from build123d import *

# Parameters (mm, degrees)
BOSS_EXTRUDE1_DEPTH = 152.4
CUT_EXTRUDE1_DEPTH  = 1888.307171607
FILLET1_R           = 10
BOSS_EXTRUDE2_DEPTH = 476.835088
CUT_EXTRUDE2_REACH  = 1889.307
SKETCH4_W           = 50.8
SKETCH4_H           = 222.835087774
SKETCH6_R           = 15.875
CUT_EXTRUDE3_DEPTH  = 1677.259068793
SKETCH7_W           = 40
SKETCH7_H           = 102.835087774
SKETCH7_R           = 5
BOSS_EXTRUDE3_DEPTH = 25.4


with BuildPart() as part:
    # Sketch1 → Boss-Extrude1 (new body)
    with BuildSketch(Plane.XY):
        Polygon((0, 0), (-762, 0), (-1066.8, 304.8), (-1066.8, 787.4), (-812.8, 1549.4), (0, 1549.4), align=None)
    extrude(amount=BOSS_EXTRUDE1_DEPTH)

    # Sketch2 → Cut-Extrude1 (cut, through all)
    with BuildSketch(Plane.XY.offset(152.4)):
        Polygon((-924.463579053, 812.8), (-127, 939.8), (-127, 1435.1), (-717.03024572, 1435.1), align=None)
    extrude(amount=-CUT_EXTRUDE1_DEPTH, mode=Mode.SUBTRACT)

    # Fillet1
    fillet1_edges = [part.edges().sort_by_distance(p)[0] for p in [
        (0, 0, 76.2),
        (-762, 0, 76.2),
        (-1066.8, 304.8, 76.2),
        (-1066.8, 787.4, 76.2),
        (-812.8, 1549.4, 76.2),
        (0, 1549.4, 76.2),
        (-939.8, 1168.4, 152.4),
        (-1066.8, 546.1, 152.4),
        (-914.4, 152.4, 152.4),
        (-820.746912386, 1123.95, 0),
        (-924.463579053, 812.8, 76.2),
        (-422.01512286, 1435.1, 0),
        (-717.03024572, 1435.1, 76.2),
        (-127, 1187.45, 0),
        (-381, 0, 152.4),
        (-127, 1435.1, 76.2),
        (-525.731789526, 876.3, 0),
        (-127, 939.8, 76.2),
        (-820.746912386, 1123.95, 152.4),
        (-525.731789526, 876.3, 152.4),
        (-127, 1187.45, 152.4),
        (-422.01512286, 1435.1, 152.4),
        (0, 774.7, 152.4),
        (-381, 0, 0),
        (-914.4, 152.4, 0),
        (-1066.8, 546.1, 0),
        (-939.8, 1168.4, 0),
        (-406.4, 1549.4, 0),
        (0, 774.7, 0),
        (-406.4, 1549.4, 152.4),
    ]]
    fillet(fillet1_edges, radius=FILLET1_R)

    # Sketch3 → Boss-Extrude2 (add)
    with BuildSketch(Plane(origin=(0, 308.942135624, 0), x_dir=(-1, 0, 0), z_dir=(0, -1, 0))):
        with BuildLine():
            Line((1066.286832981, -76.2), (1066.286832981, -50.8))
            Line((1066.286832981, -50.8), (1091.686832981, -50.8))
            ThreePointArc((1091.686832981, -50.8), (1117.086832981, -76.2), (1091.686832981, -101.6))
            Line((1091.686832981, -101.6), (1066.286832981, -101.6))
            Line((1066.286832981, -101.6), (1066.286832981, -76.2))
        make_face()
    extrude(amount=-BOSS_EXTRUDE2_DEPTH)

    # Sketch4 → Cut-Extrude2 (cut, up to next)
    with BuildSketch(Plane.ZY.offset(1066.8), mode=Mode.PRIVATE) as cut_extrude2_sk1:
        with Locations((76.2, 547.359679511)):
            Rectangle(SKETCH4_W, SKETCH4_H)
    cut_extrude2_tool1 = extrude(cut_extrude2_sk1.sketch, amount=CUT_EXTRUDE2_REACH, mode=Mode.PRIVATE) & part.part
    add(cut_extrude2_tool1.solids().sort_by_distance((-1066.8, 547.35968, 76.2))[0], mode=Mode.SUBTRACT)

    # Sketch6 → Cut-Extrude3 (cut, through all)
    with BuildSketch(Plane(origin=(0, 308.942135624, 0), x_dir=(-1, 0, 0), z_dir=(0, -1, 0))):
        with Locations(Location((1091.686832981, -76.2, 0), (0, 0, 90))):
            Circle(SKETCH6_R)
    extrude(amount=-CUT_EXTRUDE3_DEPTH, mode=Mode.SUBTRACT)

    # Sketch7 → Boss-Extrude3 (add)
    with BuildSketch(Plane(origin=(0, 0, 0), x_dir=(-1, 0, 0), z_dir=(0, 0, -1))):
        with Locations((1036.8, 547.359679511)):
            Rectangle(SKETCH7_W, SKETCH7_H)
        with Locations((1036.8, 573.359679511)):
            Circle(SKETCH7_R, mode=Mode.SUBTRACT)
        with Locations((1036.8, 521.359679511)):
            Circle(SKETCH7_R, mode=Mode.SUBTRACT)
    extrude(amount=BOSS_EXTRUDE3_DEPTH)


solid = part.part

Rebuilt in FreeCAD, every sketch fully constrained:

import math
import FreeCAD as App
import Part
import Sketcher
Q = App.Units.Quantity


def add_polygon(sketch, points):
    """Adds a closed chain of lines whose ends are joined by coincident constraints."""
    first, n = sketch.GeometryCount, len(points)
    for a, b in zip(points, points[1:] + points[:1]):
        sketch.addGeometry(Part.LineSegment(App.Vector(*a, 0), App.Vector(*b, 0)), False)
    for i in range(n):
        sketch.addConstraint(Sketcher.Constraint("Coincident", first + i, 2, first + (i + 1) % n, 1))

doc = App.newDocument("Part")
body = doc.addObject("PartDesign::Body", "Body")

# Sketch on XY plane
sketch1 = body.newObject("Sketcher::SketchObject", "Sketch")
sketch1.AttachmentSupport = (doc.getObject("XY_Plane"), [""])
sketch1.MapMode = "FlatFace"
add_polygon(sketch1, [(-762, 0), (0, 0), (0, 1549.4), (-812.8, 1549.4), (-1066.8, 787.4), (-1066.8, 304.8)])  # lines 0-5
sketch1.addConstraint(Sketcher.Constraint("Horizontal", 0))
sketch1.addConstraint(Sketcher.Constraint("Vertical", 1))
sketch1.addConstraint(Sketcher.Constraint("Horizontal", 2))
sketch1.addConstraint(Sketcher.Constraint("Vertical", 4))
sketch1.addConstraint(Sketcher.Constraint("Coincident", 0, 2, -1, 1))
sketch1.addConstraint(Sketcher.Constraint("DistanceX", 0, 1, 0, 2, Q("30 in")))
sketch1.addConstraint(Sketcher.Constraint("DistanceX", 2, 2, 2, 1, Q("32 in")))
sketch1.addConstraint(Sketcher.Constraint("DistanceY", 1, 1, 1, 2, Q("61 in")))
sketch1.addConstraint(Sketcher.Constraint("DistanceY", 4, 2, 4, 1, Q("19 in")))
sketch1.addConstraint(Sketcher.Constraint("DistanceX", 3, 2, -1, 1, Q("42 in")))
sketch1.addConstraint(Sketcher.Constraint("DistanceY", -1, 1, 3, 2, Q("31 in")))
pad1 = body.newObject("PartDesign::Pad", "Pad")
pad1.Profile = sketch1
pad1.Length = Q("6 in")

# Sketch on XY plane
sketch2 = body.newObject("Sketcher::SketchObject", "Sketch001")
sketch2.AttachmentSupport = (doc.getObject("XY_Plane"), [""])
sketch2.MapMode = "FlatFace"
sketch2.AttachmentOffset = App.Placement(App.Vector(0, 0, 6 * 25.4), App.Rotation())
add_polygon(sketch2, [(-924.463579, 812.8), (-127, 939.8), (-127, 1435.1), (-717.030246, 1435.1)])  # lines 0-3
sketch2.addConstraint(Sketcher.Constraint("Vertical", 1))
sketch2.addConstraint(Sketcher.Constraint("Horizontal", 2))
sketch2.addConstraint(Sketcher.Constraint("DistanceY", 1, 1, 1, 2, Q("19.5 in")))
sketch2.addConstraint(Sketcher.Constraint("DistanceX", 0, 2, -1, 1, Q("5 in")))
sketch2.addConstraint(Sketcher.Constraint("DistanceY", -1, 1, 0, 2, Q("37 in")))
sketch2.addConstraint(Sketcher.Constraint("DistanceY", -1, 1, 3, 2, Q("32 in")))
sketch2.addConstraint(Sketcher.Constraint("DistanceX", 2, 2, 2, 1, 590.030246))
sketch2.addConstraint(Sketcher.Constraint("DistanceX", 3, 2, -1, 1, 924.463579))
pocket1 = body.newObject("PartDesign::Pocket", "Pocket")
pocket1.Profile = sketch2
pocket1.Type = "ThroughAll"
doc.recompute()

fillet = body.newObject("PartDesign::Fillet", "Fillet")
fillet.Base = (pocket1, ["Edge1"])
fillet.UseAllEdges = True
fillet.Radius = 10

# Sketch on XZ plane
sketch3 = body.newObject("Sketcher::SketchObject", "Sketch002")
sketch3.AttachmentSupport = (doc.getObject("XZ_Plane"), [""])
sketch3.MapMode = "FlatFace"
sketch3.AttachmentOffset = App.Placement(App.Vector(0, 0, -308.942136), App.Rotation())
sketch3.addGeometry(Part.LineSegment(App.Vector(-1091.686833, 50.8, 0), App.Vector(-1066.286833, 50.8, 0)), False)
sketch3.addGeometry(Part.LineSegment(App.Vector(-1066.286833, 50.8, 0), App.Vector(-1066.286833, 101.6, 0)), False)
sketch3.addGeometry(Part.LineSegment(App.Vector(-1066.286833, 101.6, 0), App.Vector(-1091.686833, 101.6, 0)), False)
sketch3.addGeometry(Part.ArcOfCircle(Part.Circle(App.Vector(-1091.686833, 76.2, 0), App.Vector(0, 0, 1), 25.4), math.radians(90), math.radians(270)), False)
sketch3.addConstraint(Sketcher.Constraint("Coincident", 0, 2, 1, 1))
sketch3.addConstraint(Sketcher.Constraint("Coincident", 1, 2, 2, 1))
sketch3.addConstraint(Sketcher.Constraint("Tangent", 2, 2, 3, 1))
sketch3.addConstraint(Sketcher.Constraint("Tangent", 3, 2, 0, 1))
sketch3.addConstraint(Sketcher.Constraint("Horizontal", 0))
sketch3.addConstraint(Sketcher.Constraint("Vertical", 1))
sketch3.addConstraint(Sketcher.Constraint("Horizontal", 2))
sketch3.addConstraint(Sketcher.Constraint("Radius", 3, Q("1 in")))
sketch3.addConstraint(Sketcher.Constraint("DistanceX", 0, 1, 0, 2, Q("1 in")))
sketch3.addConstraint(Sketcher.Constraint("DistanceY", -1, 1, 3, 3, Q("3 in")))
sketch3.addConstraint(Sketcher.Constraint("DistanceX", 3, 3, -1, 1, 1091.686833))
pad2 = body.newObject("PartDesign::Pad", "Pad001")
pad2.Profile = sketch3
pad2.Length = 476.835088
pad2.Reversed = True

# Sketch on YZ plane
sketch4 = body.newObject("Sketcher::SketchObject", "Sketch003")
sketch4.AttachmentSupport = (doc.getObject("YZ_Plane"), [""])
sketch4.MapMode = "FlatFace"
sketch4.AttachmentOffset = App.Placement(App.Vector(0, 0, -42 * 25.4), App.Rotation())
add_polygon(sketch4, [(658.777223, 50.8), (435.942136, 50.8), (435.942136, 101.6), (658.777223, 101.6)])  # lines 0-3
sketch4.addConstraint(Sketcher.Constraint("Horizontal", 0))
sketch4.addConstraint(Sketcher.Constraint("Vertical", 1))
sketch4.addConstraint(Sketcher.Constraint("Horizontal", 2))
sketch4.addConstraint(Sketcher.Constraint("Vertical", 3))
sketch4.addConstraint(Sketcher.Constraint("DistanceY", 1, 1, 1, 2, Q("2 in")))
sketch4.addConstraint(Sketcher.Constraint("DistanceY", -1, 1, 0, 2, Q("2 in")))
sketch4.addConstraint(Sketcher.Constraint("DistanceX", 0, 2, 0, 1, 222.835088))
sketch4.addConstraint(Sketcher.Constraint("DistanceX", -1, 1, 0, 2, 435.942136))
pocket2 = body.newObject("PartDesign::Pocket", "Pocket001")
pocket2.Profile = sketch4
pocket2.Type = "UpToFirst"

# Sketch on XZ plane
sketch5 = body.newObject("Sketcher::SketchObject", "Sketch004")
sketch5.AttachmentSupport = (doc.getObject("XZ_Plane"), [""])
sketch5.MapMode = "FlatFace"
sketch5.AttachmentOffset = App.Placement(App.Vector(0, 0, -308.942136), App.Rotation())
sketch5.addGeometry(Part.Circle(App.Vector(-1091.686833, 76.2, 0), App.Vector(0, 0, 1), 15.875), False)
sketch5.addConstraint(Sketcher.Constraint("Diameter", 0, Q("1.25 in")))
sketch5.addConstraint(Sketcher.Constraint("DistanceY", -1, 1, 0, 3, Q("3 in")))
sketch5.addConstraint(Sketcher.Constraint("DistanceX", 0, 3, -1, 1, 1091.686833))
pocket3 = body.newObject("PartDesign::Pocket", "Pocket002")
pocket3.Profile = sketch5
pocket3.Type = "ThroughAll"

# Sketch on XY plane
sketch6 = body.newObject("Sketcher::SketchObject", "Sketch005")
sketch6.AttachmentSupport = (doc.getObject("XY_Plane"), [""])
sketch6.MapMode = "FlatFace"
add_polygon(sketch6, [(-1016.8, 598.777223), (-1016.8, 495.942136), (-1056.8, 495.942136), (-1056.8, 598.777223)])  # lines 0-3
sketch6.addGeometry(Part.Circle(App.Vector(-1036.8, 521.35968, 0), App.Vector(0, 0, 1), 5), False)  # 4
sketch6.addGeometry(Part.Circle(App.Vector(-1036.8, 573.35968, 0), App.Vector(0, 0, 1), 5), False)  # 5
sketch6.addConstraint(Sketcher.Constraint("Vertical", 0))
sketch6.addConstraint(Sketcher.Constraint("Horizontal", 1))
sketch6.addConstraint(Sketcher.Constraint("Vertical", 2))
sketch6.addConstraint(Sketcher.Constraint("Horizontal", 3))
sketch6.addConstraint(Sketcher.Constraint("Equal", 4, 5))
sketch6.addConstraint(Sketcher.Constraint("Vertical", 4, 3, 5, 3))
sketch6.addConstraint(Sketcher.Constraint("Diameter", 4, 10.0))
sketch6.addConstraint(Sketcher.Constraint("DistanceX", 1, 2, 1, 1, 40.0))
sketch6.addConstraint(Sketcher.Constraint("DistanceX", 4, 3, -1, 1, 1036.8))
sketch6.addConstraint(Sketcher.Constraint("DistanceX", 0, 2, -1, 1, 1016.8))
sketch6.addConstraint(Sketcher.Constraint("DistanceY", 4, 3, 5, 3, 52.0))
sketch6.addConstraint(Sketcher.Constraint("DistanceY", 0, 2, 0, 1, 102.835088))
sketch6.addConstraint(Sketcher.Constraint("DistanceY", -1, 1, 4, 3, 521.35968))
sketch6.addConstraint(Sketcher.Constraint("DistanceY", -1, 1, 0, 2, 495.942136))
pad3 = body.newObject("PartDesign::Pad", "Pad002")
pad3.Profile = sketch6
pad3.Length = Q("1 in")
pad3.Reversed = True

doc.recompute()
